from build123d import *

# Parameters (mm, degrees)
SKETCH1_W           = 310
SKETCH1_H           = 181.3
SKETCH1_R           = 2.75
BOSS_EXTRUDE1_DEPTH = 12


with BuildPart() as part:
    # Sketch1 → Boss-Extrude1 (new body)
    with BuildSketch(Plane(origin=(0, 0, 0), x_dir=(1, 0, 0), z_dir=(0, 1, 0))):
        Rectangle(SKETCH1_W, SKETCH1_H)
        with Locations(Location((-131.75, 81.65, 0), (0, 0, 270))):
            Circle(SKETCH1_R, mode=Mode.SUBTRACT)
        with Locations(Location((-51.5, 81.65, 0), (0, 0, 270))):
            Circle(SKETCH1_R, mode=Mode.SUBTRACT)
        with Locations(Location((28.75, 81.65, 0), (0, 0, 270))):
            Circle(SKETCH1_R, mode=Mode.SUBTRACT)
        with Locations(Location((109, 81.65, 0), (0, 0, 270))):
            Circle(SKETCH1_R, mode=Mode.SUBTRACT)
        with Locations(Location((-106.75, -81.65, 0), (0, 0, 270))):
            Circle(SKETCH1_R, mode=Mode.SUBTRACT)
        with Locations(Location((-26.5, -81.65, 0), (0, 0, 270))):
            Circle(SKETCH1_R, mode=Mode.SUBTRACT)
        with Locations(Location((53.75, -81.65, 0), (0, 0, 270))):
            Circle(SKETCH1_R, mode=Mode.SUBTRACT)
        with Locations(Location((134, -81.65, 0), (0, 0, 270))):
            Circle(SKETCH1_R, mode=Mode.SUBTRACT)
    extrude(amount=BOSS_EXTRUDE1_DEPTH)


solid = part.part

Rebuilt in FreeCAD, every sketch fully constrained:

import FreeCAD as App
import Part
import Sketcher
from FreeCAD import Vector


def add_polygon(sketch, points):
    """Adds a closed chain of lines whose ends are joined by coincident constraints."""
    first, n = sketch.GeometryCount, len(points)
    for a, b in zip(points, points[1:] + points[:1]):
        sketch.addGeometry(Part.LineSegment(App.Vector(*a, 0), App.Vector(*b, 0)), False)
    for i in range(n):
        sketch.addConstraint(Sketcher.Constraint("Coincident", first + i, 2, first + (i + 1) % n, 1))

doc = App.newDocument("Part")
body = doc.addObject("PartDesign::Body", "Body")

# Sketch on XZ plane
sketch1 = body.newObject("Sketcher::SketchObject", "Sketch")
sketch1.AttachmentSupport = (doc.getObject("XZ_Plane"), [""])
sketch1.MapMode = "FlatFace"
add_polygon(sketch1, [(-155, -90.7), (-155, 90.7), (155, 90.7), (155, -90.7)])  # lines 0-3
sketch1.addGeometry(Part.Circle(Vector(-106.8, 81.7, 0), Vector(0, 0, 1), 2.8), False)  # 4
sketch1.addGeometry(Part.Circle(Vector(-26.5, 81.7, 0), Vector(0, 0, 1), 2.8), False)  # 5
sketch1.addGeometry(Part.Circle(Vector(53.8, 81.7, 0), Vector(0, 0, 1), 2.8), False)  # 6
sketch1.addGeometry(Part.Circle(Vector(134, 81.7, 0), Vector(0, 0, 1), 2.8), False)  # 7
sketch1.addGeometry(Part.Circle(Vector(-131.8, -81.7, 0), Vector(0, 0, 1), 2.8), False)  # 8
sketch1.addGeometry(Part.Circle(Vector(-51.5, -81.7, 0), Vector(0, 0, 1), 2.8), False)  # 9
sketch1.addGeometry(Part.Circle(Vector(28.8, -81.7, 0), Vector(0, 0, 1), 2.8), False)  # 10
sketch1.addGeometry(Part.Circle(Vector(109, -81.7, 0), Vector(0, 0, 1), 2.8), False)  # 11
sketch1.addConstraint([
    Sketcher.Constraint("Vertical", 0),
    Sketcher.Constraint("Horizontal", 1),
    Sketcher.Constraint("Vertical", 2),
    Sketcher.Constraint("Horizontal", 3),
    Sketcher.Constraint("Equal", 4, 5),
    Sketcher.Constraint("Equal", 5, 6),
    Sketcher.Constraint("Equal", 6, 7),
    Sketcher.Constraint("Equal", 7, 8),
    Sketcher.Constraint("Equal", 8, 9),
    Sketcher.Constraint("Equal", 9, 10),
    Sketcher.Constraint("Equal", 10, 11),
    Sketcher.Constraint("Symmetric", 0, 2, 2, 2, -1, 1),
    Sketcher.Constraint("Horizontal", 4, 3, 5, 3),
    Sketcher.Constraint("Horizontal", 5, 3, 6, 3),
    Sketcher.Constraint("Horizontal", 6, 3, 7, 3),
    Sketcher.Constraint("Horizontal", 8, 3, 9, 3),
    Sketcher.Constraint("Horizontal", 9, 3, 10, 3),
    Sketcher.Constraint("Horizontal", 10, 3, 11, 3),
    Sketcher.Constraint("Diameter", 4, 5.5),
    Sketcher.Constraint("DistanceX", 1, 1, 1, 2, 310.0),
    Sketcher.Constraint("DistanceY", 0, 1, 0, 2, 181.3),
    Sketcher.Constraint("DistanceX", -1, 1, 7, 3, 134.0),
    Sketcher.Constraint("DistanceX", -1, 1, 11, 3, 109.0),
    Sketcher.Constraint("DistanceX", 8, 3, 4, 3, 25.0),
    Sketcher.Constraint("DistanceX", 9, 3, 5, 3, 25.0),
    Sketcher.Constraint("DistanceX", 10, 3, 6, 3, 25.0),
    Sketcher.Constraint("DistanceY", 4, 3, 0, 2, 9.0),
    Sketcher.Constraint("DistanceY", 2, 2, 11, 3, 9.0),
    Sketcher.Constraint("DistanceX", 5, 3, -1, 1, 26.5),
    Sketcher.Constraint("DistanceX", 4, 3, 6, 3, 160.5),
    Sketcher.Constraint("DistanceX", 4, 3, -1, 1, 106.75),
])
pad1 = body.newObject("PartDesign::Pad", "Pad")
pad1.Profile = sketch1
pad1.Length = 12
pad1.Reversed = True

doc.recompute()
